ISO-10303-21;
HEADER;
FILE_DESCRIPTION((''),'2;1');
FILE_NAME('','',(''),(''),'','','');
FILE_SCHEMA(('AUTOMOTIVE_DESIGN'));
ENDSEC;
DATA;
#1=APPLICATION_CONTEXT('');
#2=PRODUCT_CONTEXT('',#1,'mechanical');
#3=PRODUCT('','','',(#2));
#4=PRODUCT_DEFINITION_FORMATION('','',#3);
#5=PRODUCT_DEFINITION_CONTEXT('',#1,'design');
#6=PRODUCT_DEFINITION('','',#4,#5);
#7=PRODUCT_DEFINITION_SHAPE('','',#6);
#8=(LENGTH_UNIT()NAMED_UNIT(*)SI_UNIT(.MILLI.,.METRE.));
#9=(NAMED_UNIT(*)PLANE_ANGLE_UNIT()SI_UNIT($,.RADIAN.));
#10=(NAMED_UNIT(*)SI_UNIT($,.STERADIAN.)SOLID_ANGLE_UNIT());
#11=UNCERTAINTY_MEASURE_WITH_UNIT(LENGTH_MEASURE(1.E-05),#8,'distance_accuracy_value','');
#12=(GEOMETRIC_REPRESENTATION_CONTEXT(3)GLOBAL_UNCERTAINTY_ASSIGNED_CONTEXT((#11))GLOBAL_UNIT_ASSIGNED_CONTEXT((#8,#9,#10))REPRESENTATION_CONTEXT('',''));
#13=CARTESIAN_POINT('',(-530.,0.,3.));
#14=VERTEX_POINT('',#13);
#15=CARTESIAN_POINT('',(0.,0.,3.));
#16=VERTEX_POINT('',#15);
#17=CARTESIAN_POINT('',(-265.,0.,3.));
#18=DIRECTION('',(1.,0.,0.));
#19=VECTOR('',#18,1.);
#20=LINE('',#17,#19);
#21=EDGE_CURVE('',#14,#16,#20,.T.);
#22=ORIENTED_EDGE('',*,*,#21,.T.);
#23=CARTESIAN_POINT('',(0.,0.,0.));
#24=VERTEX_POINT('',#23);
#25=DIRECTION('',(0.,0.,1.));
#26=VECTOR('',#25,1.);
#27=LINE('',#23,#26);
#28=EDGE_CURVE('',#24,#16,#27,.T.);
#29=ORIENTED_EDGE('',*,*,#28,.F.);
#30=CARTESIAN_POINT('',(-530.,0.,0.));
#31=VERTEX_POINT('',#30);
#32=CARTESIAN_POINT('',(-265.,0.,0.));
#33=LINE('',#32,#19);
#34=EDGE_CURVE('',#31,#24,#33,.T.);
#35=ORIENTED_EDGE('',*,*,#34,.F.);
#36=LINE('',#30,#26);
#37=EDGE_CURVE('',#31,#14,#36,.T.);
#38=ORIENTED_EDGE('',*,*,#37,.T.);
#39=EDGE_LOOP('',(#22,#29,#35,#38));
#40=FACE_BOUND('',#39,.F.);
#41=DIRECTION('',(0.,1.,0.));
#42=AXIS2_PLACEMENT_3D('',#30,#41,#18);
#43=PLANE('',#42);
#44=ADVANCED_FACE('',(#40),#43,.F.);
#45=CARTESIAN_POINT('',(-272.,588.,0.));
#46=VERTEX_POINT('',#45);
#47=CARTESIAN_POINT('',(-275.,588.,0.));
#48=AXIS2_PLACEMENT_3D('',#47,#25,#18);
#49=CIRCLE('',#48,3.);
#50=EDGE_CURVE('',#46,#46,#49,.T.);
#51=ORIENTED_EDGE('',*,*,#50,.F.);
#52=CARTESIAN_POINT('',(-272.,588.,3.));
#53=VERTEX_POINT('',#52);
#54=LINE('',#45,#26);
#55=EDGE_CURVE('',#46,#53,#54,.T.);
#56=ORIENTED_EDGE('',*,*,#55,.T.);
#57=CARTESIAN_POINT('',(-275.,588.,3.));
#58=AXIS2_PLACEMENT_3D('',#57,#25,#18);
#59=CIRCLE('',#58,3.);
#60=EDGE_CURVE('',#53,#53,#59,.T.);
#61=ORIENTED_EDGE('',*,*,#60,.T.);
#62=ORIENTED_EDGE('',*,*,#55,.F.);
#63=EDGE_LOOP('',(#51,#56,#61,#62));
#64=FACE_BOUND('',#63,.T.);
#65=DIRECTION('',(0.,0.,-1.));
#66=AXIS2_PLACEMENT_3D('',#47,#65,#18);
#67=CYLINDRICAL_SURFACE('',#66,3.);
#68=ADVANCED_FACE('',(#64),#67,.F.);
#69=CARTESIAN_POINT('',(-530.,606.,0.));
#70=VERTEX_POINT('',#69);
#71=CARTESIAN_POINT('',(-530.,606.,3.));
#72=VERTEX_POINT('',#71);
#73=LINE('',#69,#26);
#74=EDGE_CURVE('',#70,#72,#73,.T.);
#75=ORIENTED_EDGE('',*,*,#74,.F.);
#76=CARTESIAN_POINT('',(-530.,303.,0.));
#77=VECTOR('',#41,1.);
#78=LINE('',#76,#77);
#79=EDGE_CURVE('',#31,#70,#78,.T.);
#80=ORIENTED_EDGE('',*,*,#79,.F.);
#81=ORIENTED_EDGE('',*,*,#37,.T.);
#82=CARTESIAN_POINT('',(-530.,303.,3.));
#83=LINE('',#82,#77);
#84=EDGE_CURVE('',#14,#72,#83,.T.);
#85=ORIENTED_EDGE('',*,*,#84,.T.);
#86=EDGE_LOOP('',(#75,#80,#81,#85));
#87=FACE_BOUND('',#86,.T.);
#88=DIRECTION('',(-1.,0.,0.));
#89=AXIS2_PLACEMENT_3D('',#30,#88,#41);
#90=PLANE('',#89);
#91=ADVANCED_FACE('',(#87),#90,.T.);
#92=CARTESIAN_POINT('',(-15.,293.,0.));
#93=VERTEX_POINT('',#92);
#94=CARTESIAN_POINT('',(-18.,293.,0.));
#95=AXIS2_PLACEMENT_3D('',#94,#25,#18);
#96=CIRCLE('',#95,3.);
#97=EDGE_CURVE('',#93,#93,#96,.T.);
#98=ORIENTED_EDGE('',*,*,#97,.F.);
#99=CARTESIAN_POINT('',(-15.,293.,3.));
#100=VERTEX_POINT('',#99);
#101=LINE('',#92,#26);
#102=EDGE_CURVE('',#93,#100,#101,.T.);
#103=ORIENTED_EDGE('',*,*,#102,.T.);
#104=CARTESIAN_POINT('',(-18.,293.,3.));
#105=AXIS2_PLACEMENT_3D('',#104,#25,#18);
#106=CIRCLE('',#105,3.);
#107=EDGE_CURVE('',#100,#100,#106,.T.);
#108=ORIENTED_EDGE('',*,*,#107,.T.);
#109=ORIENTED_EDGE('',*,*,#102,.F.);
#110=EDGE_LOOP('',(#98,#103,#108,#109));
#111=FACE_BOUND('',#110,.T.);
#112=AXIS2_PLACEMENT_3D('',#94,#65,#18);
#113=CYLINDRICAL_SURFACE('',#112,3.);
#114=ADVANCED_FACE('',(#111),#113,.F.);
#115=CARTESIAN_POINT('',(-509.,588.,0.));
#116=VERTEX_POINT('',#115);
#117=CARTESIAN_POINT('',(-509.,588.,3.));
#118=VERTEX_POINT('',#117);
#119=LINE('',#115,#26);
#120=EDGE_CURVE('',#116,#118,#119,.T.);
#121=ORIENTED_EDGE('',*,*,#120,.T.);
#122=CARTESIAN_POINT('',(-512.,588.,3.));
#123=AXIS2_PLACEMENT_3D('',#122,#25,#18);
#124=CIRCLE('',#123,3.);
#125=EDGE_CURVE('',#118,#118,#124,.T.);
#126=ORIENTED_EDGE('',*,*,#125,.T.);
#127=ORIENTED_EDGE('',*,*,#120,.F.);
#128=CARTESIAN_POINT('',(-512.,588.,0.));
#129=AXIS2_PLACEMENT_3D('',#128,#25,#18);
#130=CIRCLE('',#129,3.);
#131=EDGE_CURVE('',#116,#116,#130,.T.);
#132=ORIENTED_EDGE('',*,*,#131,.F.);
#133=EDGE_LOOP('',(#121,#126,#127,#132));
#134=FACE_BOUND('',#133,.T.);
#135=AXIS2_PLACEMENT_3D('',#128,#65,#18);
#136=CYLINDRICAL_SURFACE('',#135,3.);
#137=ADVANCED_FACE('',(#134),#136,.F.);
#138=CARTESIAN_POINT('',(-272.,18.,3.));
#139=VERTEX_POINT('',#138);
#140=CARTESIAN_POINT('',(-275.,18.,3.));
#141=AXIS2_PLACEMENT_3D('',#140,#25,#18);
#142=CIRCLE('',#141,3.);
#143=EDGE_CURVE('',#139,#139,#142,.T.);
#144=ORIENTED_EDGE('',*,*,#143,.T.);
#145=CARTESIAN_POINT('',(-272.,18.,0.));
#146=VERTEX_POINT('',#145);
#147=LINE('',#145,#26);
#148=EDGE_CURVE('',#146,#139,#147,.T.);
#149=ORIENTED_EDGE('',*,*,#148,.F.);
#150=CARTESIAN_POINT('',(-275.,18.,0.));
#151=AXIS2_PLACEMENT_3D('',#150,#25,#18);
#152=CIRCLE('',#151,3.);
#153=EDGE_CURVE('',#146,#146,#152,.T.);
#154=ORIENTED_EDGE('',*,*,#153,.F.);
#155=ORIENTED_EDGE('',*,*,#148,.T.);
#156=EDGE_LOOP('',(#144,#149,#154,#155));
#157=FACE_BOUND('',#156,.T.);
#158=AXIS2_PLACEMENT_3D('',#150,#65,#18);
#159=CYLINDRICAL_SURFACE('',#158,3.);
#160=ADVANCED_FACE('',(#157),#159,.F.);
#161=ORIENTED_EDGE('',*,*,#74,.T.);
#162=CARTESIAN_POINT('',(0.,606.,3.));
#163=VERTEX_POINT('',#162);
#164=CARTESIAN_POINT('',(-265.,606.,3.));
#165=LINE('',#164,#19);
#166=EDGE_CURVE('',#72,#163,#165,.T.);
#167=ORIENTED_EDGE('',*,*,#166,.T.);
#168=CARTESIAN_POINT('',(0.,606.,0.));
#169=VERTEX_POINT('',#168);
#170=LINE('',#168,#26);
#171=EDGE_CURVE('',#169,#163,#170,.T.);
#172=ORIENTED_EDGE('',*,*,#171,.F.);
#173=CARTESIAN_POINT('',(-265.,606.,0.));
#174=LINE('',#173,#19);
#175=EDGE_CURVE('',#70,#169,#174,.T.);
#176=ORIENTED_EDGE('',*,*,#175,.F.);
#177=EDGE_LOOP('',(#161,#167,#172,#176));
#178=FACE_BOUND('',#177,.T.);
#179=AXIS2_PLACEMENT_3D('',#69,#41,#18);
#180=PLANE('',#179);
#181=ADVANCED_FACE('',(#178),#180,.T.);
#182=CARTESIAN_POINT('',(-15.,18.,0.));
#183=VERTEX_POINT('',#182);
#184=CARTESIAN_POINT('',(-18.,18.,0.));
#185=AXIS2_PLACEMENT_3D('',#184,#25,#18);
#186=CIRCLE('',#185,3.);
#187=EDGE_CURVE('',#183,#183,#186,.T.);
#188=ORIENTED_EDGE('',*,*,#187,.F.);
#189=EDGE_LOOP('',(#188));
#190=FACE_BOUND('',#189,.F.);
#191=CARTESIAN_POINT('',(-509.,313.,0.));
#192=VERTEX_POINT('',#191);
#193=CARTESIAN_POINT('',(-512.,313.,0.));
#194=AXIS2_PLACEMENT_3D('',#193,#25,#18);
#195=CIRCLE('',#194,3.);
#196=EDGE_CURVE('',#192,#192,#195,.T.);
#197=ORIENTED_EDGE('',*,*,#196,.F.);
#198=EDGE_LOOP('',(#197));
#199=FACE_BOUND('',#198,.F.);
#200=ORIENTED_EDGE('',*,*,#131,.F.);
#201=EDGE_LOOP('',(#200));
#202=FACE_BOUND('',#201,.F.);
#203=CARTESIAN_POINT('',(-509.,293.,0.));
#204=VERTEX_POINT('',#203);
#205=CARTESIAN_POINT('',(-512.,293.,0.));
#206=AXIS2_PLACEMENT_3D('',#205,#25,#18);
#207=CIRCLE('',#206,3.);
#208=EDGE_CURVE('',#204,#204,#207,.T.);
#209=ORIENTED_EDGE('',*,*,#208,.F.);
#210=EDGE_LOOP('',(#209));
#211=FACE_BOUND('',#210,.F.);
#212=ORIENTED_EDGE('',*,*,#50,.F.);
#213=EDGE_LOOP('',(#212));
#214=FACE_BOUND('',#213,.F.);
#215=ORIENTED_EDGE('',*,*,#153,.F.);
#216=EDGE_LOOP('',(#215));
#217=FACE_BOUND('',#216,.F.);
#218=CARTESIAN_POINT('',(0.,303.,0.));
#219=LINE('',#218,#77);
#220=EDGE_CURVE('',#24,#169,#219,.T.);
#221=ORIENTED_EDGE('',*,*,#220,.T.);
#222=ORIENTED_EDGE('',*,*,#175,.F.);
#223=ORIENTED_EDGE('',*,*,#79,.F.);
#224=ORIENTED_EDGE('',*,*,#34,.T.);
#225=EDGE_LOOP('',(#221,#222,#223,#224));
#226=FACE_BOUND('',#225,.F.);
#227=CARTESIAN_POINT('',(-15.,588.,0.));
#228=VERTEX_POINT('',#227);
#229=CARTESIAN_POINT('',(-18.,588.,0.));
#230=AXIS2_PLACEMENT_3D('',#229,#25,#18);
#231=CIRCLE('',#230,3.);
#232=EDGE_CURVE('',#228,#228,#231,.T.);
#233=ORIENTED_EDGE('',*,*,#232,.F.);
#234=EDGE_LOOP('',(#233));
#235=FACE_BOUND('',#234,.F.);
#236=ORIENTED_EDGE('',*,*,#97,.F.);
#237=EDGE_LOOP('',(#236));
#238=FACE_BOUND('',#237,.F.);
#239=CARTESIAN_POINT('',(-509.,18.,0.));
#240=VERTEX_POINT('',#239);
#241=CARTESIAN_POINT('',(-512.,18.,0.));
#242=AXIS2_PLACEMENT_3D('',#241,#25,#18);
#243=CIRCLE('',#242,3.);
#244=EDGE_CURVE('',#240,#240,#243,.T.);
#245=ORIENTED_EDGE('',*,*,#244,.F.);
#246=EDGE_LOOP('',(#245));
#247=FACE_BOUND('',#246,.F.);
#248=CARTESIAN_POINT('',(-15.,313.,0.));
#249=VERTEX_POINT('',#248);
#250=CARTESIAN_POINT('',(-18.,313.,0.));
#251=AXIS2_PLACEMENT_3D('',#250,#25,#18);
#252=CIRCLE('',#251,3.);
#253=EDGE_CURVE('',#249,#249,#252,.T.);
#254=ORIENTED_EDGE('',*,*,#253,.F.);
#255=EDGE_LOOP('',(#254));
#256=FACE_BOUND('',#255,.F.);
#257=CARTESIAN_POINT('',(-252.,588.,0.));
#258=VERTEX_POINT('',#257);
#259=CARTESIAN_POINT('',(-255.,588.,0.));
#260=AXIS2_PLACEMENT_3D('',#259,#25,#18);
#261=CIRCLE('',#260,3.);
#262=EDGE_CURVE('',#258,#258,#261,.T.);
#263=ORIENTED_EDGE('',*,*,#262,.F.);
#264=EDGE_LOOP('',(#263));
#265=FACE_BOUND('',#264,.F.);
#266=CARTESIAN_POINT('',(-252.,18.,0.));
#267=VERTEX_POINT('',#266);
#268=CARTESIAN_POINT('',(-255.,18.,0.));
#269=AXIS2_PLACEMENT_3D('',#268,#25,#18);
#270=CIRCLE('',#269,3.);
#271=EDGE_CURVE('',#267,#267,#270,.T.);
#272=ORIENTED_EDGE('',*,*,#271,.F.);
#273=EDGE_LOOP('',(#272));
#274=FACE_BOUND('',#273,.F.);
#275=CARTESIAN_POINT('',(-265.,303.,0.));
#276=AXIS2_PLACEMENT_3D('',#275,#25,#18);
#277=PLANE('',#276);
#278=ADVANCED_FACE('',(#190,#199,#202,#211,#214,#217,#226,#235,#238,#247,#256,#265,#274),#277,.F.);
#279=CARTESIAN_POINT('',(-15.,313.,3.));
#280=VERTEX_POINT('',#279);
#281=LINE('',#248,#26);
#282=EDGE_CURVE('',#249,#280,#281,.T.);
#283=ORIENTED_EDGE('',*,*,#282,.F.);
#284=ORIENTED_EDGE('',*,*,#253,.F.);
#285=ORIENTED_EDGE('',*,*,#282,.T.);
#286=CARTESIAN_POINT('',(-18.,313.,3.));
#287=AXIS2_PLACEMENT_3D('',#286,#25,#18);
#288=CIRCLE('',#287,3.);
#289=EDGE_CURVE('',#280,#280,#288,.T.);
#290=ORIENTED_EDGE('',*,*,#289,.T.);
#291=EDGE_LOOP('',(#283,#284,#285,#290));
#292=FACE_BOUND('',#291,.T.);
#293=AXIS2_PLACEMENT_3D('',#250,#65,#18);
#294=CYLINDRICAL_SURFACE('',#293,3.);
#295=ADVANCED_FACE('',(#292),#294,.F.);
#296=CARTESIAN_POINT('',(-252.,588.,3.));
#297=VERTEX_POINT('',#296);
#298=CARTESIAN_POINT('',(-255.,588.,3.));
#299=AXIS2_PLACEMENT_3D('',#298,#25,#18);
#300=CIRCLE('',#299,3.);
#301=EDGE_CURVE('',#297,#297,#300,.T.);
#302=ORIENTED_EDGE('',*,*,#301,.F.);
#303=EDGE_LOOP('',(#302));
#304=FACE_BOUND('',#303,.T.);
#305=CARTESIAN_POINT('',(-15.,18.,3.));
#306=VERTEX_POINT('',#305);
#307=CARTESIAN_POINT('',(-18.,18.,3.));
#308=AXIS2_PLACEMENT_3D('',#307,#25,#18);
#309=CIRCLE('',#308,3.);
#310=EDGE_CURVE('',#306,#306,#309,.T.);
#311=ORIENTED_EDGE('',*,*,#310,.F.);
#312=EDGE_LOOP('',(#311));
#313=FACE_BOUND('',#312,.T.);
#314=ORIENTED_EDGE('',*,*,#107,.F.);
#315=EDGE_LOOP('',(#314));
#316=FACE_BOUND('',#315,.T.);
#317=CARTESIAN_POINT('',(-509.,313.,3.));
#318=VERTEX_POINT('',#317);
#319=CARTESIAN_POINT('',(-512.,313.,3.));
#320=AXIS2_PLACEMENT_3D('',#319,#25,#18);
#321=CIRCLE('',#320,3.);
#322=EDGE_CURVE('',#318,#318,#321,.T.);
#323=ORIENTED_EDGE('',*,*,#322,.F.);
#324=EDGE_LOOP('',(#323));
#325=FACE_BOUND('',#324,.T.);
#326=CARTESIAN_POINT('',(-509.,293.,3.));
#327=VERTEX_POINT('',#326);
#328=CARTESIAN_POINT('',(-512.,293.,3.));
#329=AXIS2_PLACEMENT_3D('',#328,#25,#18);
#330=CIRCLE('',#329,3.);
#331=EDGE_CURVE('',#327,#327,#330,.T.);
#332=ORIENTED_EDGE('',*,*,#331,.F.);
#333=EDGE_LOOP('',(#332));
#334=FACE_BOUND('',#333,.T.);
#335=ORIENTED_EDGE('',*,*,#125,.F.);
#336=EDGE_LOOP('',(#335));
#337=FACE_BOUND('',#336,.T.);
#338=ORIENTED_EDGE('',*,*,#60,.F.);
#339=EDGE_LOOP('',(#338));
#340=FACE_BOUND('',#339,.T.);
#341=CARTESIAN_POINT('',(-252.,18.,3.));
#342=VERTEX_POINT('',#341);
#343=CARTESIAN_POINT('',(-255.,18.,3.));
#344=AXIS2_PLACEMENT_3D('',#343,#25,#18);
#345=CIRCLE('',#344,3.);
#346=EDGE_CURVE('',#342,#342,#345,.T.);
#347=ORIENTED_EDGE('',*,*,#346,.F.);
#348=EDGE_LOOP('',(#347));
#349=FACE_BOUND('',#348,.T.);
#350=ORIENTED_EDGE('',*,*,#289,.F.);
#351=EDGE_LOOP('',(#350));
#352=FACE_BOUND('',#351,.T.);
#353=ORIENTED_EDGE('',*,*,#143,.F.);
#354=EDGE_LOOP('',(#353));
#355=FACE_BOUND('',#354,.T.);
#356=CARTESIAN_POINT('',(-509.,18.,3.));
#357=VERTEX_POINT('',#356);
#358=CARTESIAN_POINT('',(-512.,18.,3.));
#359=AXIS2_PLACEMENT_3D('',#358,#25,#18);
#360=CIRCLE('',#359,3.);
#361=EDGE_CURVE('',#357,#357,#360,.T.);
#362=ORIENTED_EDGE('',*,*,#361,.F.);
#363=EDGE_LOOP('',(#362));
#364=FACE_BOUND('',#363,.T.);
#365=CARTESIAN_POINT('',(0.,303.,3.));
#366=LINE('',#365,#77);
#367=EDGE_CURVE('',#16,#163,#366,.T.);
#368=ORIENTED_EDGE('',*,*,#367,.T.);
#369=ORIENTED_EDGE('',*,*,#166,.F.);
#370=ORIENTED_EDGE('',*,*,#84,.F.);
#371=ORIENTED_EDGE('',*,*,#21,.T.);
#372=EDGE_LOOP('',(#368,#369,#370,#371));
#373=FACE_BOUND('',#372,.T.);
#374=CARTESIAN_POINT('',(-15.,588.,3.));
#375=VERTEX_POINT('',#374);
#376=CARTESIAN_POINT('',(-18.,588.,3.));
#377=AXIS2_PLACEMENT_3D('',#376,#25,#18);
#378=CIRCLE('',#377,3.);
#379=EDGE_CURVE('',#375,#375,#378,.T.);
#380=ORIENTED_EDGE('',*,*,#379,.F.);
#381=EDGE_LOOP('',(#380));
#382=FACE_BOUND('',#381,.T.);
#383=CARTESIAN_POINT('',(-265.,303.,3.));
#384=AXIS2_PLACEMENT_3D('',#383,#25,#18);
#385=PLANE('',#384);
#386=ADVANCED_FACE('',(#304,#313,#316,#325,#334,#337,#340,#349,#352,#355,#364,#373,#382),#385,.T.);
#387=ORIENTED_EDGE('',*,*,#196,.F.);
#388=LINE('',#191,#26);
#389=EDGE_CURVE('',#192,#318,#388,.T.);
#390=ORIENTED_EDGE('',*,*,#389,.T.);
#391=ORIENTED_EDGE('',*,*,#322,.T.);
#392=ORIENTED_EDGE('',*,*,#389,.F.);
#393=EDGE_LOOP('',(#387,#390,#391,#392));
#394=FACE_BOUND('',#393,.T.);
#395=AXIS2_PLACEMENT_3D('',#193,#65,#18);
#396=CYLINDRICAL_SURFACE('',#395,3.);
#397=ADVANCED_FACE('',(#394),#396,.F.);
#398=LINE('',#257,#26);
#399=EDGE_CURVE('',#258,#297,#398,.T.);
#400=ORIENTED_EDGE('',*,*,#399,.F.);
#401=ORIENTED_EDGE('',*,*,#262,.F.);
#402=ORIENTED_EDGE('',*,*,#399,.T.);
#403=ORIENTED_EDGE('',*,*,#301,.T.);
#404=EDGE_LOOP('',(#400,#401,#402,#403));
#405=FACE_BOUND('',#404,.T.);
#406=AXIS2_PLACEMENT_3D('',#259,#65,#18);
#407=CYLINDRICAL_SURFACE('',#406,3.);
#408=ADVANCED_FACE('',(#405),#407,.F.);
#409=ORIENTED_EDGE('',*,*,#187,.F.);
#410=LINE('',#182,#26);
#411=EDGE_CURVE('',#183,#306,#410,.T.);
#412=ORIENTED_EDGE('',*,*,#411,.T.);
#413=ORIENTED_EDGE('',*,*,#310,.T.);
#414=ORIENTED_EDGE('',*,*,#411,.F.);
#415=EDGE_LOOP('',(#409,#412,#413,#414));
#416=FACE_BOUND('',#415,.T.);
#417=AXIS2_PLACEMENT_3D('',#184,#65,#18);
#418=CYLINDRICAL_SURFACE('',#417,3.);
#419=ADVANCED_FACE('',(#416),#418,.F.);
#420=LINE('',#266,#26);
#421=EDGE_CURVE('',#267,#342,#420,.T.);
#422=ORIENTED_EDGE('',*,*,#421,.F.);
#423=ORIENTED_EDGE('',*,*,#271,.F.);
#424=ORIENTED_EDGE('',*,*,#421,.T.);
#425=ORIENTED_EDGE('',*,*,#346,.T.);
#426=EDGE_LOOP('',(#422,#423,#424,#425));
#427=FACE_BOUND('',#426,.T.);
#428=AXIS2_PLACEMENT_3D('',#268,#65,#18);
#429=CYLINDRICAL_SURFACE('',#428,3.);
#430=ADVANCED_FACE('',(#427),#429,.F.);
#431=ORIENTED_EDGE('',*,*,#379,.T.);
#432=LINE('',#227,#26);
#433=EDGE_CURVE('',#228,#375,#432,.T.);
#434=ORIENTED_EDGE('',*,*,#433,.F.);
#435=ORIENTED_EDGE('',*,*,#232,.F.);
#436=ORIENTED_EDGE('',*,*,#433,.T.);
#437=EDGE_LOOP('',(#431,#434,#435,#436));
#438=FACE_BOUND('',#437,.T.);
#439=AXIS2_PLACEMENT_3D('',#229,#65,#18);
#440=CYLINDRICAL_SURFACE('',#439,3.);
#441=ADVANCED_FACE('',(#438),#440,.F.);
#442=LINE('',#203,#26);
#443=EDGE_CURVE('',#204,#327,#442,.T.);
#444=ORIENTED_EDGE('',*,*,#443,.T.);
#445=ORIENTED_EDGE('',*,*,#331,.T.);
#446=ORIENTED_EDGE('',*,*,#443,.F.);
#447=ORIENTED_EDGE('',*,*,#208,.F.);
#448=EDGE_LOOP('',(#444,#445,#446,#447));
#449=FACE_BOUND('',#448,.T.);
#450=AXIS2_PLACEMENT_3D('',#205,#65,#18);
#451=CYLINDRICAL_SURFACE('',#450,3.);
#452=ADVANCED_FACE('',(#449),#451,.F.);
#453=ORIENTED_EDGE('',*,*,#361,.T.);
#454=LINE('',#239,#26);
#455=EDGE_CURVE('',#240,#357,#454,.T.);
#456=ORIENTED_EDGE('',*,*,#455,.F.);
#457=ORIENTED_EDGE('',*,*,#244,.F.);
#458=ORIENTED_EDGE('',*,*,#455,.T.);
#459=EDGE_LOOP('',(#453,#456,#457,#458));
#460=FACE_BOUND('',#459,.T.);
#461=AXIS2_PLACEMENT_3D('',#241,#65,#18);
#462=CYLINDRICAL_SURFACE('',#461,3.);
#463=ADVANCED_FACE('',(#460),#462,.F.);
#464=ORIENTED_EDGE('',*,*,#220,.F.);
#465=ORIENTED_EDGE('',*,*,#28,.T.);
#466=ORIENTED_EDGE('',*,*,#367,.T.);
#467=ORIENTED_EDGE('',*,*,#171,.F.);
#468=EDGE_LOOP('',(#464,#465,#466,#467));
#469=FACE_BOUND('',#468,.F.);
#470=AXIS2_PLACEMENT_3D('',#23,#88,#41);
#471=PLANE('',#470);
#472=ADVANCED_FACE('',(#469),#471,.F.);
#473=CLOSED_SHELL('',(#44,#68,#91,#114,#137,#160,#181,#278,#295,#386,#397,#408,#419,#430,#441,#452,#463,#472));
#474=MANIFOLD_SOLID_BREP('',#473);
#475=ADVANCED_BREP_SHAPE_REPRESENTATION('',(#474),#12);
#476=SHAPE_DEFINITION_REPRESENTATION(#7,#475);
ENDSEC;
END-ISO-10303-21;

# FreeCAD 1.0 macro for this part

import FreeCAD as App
import Part
import Sketcher

V = App.Vector
Q = App.Units.Quantity


def add_polygon(sketch, points):
    """Adds a closed chain of lines whose ends are joined by coincident constraints."""
    first, n = sketch.GeometryCount, len(points)
    for a, b in zip(points, points[1:] + points[:1]):
        sketch.addGeometry(Part.LineSegment(App.Vector(*a, 0), App.Vector(*b, 0)), False)
    for i in range(n):
        sketch.addConstraint(Sketcher.Constraint("Coincident", first + i, 2, first + (i + 1) % n, 1))

doc = App.newDocument("Part")
params = doc.addObject("Spreadsheet::Sheet", "Params")
for row, (alias, value) in enumerate([
    ("sketch1_diameter", "6 mm"),
    ("sketch1_width", "530 mm"),
    ("sketch1_height", "606 mm"),
    ("pad1_length", "3 mm"),
], start=1):
    params.set(f"A{row}", alias)
    params.set(f"B{row}", "=" + value)
    params.setAlias(f"B{row}", alias)

body = doc.addObject("PartDesign::Body", "Body")

sketch1 = body.newObject("Sketcher::SketchObject", "Sketch")
sketch1.AttachmentSupport = (doc.getObject("XY_Plane"), [""])
sketch1.MapMode = "FlatFace"
add_polygon(sketch1, [(-530, 606), (-530, 0), (0, 0), (0, 606)])
sketch1.addGeometry(Part.Circle(V(-512, 18, 0), V(0, 0, 1), 3), False)
sketch1.addGeometry(Part.Circle(V(-275, 18, 0), V(0, 0, 1), 3), False)
sketch1.addGeometry(Part.Circle(V(-512, 293, 0), V(0, 0, 1), 3), False)
sketch1.addGeometry(Part.Circle(V(-255, 18, 0), V(0, 0, 1), 3), False)
sketch1.addGeometry(Part.Circle(V(-18, 18, 0), V(0, 0, 1), 3), False)
sketch1.addGeometry(Part.Circle(V(-18, 293, 0), V(0, 0, 1), 3), False)
sketch1.addGeometry(Part.Circle(V(-512, 313, 0), V(0, 0, 1), 3), False)
sketch1.addGeometry(Part.Circle(V(-512, 588, 0), V(0, 0, 1), 3), False)
sketch1.addGeometry(Part.Circle(V(-275, 588, 0), V(0, 0, 1), 3), False)
sketch1.addGeometry(Part.Circle(V(-18, 313, 0), V(0, 0, 1), 3), False)
sketch1.addGeometry(Part.Circle(V(-255, 588, 0), V(0, 0, 1), 3), False)
sketch1.addGeometry(Part.Circle(V(-18, 588, 0), V(0, 0, 1), 3), False)
sketch1.addConstraint([
    Sketcher.Constraint("Vertical", 0),
    Sketcher.Constraint("Horizontal", 1),
    Sketcher.Constraint("Vertical", 2),
    Sketcher.Constraint("Horizontal", 3),
    Sketcher.Constraint("Coincident", 1, 2, -1, 1),
    Sketcher.Constraint("Equal", 4, 5),
    Sketcher.Constraint("Equal", 5, 6),
    Sketcher.Constraint("Equal", 6, 7),
    Sketcher.Constraint("Equal", 7, 8),
    Sketcher.Constraint("Equal", 8, 9),
    Sketcher.Constraint("Equal", 9, 10),
    Sketcher.Constraint("Equal", 10, 11),
    Sketcher.Constraint("Equal", 11, 12),
    Sketcher.Constraint("Equal", 12, 13),
    Sketcher.Constraint("Equal", 13, 14),
    Sketcher.Constraint("Equal", 14, 15),
    Sketcher.Constraint("Horizontal", 4, 3, 5, 3),
    Sketcher.Constraint("Horizontal", 5, 3, 7, 3),
    Sketcher.Constraint("Horizontal", 7, 3, 8, 3),
    Sketcher.Constraint("Horizontal", 6, 3, 9, 3),
    Sketcher.Constraint("Horizontal", 11, 3, 12, 3),
    Sketcher.Constraint("Horizontal", 10, 3, 13, 3),
    Sketcher.Constraint("Horizontal", 12, 3, 14, 3),
    Sketcher.Constraint("Horizontal", 14, 3, 15, 3),
    Sketcher.Constraint("Vertical", 4, 3, 6, 3),
    Sketcher.Constraint("Vertical", 8, 3, 9, 3),
    Sketcher.Constraint("Vertical", 6, 3, 10, 3),
    Sketcher.Constraint("Vertical", 10, 3, 11, 3),
    Sketcher.Constraint("Vertical", 5, 3, 12, 3),
    Sketcher.Constraint("Vertical", 9, 3, 13, 3),
    Sketcher.Constraint("Vertical", 7, 3, 14, 3),
    Sketcher.Constraint("Vertical", 13, 3, 15, 3),
    Sketcher.Constraint("Diameter", 4, Q("6 mm")),
    Sketcher.Constraint("DistanceX", 1, 1, 1, 2, Q("530 mm")),
    Sketcher.Constraint("DistanceY", 0, 2, 0, 1, Q("606 mm")),
    Sketcher.Constraint("DistanceX", 4, 3, -1, 1, Q("512 mm")),
    Sketcher.Constraint("DistanceY", -1, 1, 4, 3, Q("18 mm")),
    Sketcher.Constraint("DistanceX", 5, 3, -1, 1, Q("275 mm")),
    Sketcher.Constraint("DistanceY", -1, 1, 6, 3, Q("293 mm")),
    Sketcher.Constraint("DistanceX", 7, 3, -1, 1, Q("255 mm")),
    Sketcher.Constraint("DistanceX", 8, 3, -1, 1, Q("18 mm")),
    Sketcher.Constraint("DistanceY", -1, 1, 10, 3, Q("313 mm")),
    Sketcher.Constraint("DistanceY", -1, 1, 11, 3, Q("588 mm")),
])
sketch1.setExpression("Constraints[36]", "Params.sketch1_diameter")
sketch1.setExpression("Constraints[37]", "Params.sketch1_width")
sketch1.setExpression("Constraints[38]", "Params.sketch1_height")
pad1 = body.newObject("PartDesign::Pad", "Pad")
pad1.Profile = sketch1
pad1.setExpression("Length", "Params.pad1_length")

doc.recompute()
